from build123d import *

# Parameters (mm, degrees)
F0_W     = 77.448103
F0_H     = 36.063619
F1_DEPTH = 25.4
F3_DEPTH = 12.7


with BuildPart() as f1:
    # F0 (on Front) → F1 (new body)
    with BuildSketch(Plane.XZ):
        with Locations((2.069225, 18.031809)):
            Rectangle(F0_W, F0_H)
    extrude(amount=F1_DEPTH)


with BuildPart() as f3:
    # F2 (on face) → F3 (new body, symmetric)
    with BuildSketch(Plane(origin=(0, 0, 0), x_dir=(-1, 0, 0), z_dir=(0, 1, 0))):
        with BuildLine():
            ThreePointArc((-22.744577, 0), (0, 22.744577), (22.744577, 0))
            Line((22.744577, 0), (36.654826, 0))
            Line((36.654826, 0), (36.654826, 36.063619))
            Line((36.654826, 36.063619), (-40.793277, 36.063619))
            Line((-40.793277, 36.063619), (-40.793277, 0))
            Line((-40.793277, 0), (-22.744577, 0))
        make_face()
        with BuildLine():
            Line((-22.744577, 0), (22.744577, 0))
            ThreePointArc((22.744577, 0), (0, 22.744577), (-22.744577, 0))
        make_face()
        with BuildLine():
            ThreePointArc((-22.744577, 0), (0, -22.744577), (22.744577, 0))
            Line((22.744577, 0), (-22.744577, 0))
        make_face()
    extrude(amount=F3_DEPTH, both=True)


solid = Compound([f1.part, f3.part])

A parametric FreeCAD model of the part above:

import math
import FreeCAD as App
import Part
import Sketcher
from FreeCAD import Vector
Q = App.Units.Quantity


def add_polygon(sketch, points):
    """Adds a closed chain of lines whose ends are joined by coincident constraints."""
    first, n = sketch.GeometryCount, len(points)
    for a, b in zip(points, points[1:] + points[:1]):
        sketch.addGeometry(Part.LineSegment(App.Vector(*a, 0), App.Vector(*b, 0)), False)
    for i in range(n):
        sketch.addConstraint(Sketcher.Constraint("Coincident", first + i, 2, first + (i + 1) % n, 1))

doc = App.newDocument("Part")
body = doc.addObject("PartDesign::Body", "Body")

# Sketch on XZ plane
sketch1 = doc.addObject("Sketcher::SketchObject", "Sketch")
body.addObject(sketch1)
sketch1.AttachmentSupport = (doc.XZ_Plane, [""])
sketch1.MapMode = "FlatFace"
add_polygon(sketch1, [(-37, 36), (-37, 0), (41, 0), (41, 36)])  # lines 0-3
sketch1.addConstraint(Sketcher.Constraint("Vertical", 0))
sketch1.addConstraint(Sketcher.Constraint("Horizontal", 1))
sketch1.addConstraint(Sketcher.Constraint("Vertical", 2))
sketch1.addConstraint(Sketcher.Constraint("Horizontal", 3))
sketch1.addConstraint(Sketcher.Constraint("PointOnObject", 0, 2, -1))
sketch1.addConstraint(Sketcher.Constraint("DistanceY", 0, 2, 0, 1, Q("36.063619 mm")))
sketch1.addConstraint(Sketcher.Constraint("DistanceX", 1, 1, 1, 2, Q("77.448103 mm")))
sketch1.addConstraint(Sketcher.Constraint("DistanceX", 0, 2, -1, 1, Q("36.654826 mm")))
pad1 = doc.addObject("PartDesign::Pad", "Pad")
body.addObject(pad1)
pad1.Profile = sketch1
pad1.Length = Q("1 in")
body2 = doc.addObject("PartDesign::Body", "Body001")

# Sketch on XZ plane
sketch2 = doc.addObject("Sketcher::SketchObject", "Sketch001")
body2.addObject(sketch2)
sketch2.AttachmentSupport = (doc.getObject("XZ_Plane001"), [""])
sketch2.MapMode = "FlatFace"
sketch2.addGeometry(Part.LineSegment(Vector(-37, 0, 0), Vector(-37, 36, 0)), False)
sketch2.addGeometry(Part.LineSegment(Vector(-37, 36, 0), Vector(41, 36, 0)), False)
sketch2.addGeometry(Part.LineSegment(Vector(41, 36, 0), Vector(41, 0, 0)), False)
sketch2.addGeometry(Part.LineSegment(Vector(41, 0, 0), Vector(23, 0, 0)), False)
sketch2.addGeometry(Part.ArcOfCircle(Part.Circle(Vector(0, 0, 0), Vector(0, 0, 1), 23), math.radians(180), math.radians(360)), False)
sketch2.addGeometry(Part.LineSegment(Vector(-23, 0, 0), Vector(-37, 0, 0)), False)
sketch2.addConstraint(Sketcher.Constraint("Coincident", 0, 2, 1, 1))
sketch2.addConstraint(Sketcher.Constraint("Coincident", 1, 2, 2, 1))
sketch2.addConstraint(Sketcher.Constraint("Coincident", 2, 2, 3, 1))
sketch2.addConstraint(Sketcher.Constraint("Coincident", 3, 2, 4, 2))
sketch2.addConstraint(Sketcher.Constraint("Coincident", 4, 1, 5, 1))
sketch2.addConstraint(Sketcher.Constraint("Coincident", 5, 2, 0, 1))
sketch2.addConstraint(Sketcher.Constraint("Vertical", 0))
sketch2.addConstraint(Sketcher.Constraint("Horizontal", 1))
sketch2.addConstraint(Sketcher.Constraint("Vertical", 2))
sketch2.addConstraint(Sketcher.Constraint("Horizontal", 3))
sketch2.addConstraint(Sketcher.Constraint("Horizontal", 5))
sketch2.addConstraint(Sketcher.Constraint("Coincident", 4, 3, -1, 1))
sketch2.addConstraint(Sketcher.Constraint("PointOnObject", 2, 2, -1))
sketch2.addConstraint(Sketcher.Constraint("PointOnObject", 4, 1, -1))
sketch2.addConstraint(Sketcher.Constraint("DistanceX", 3, 2, 3, 1, Q("18.0487 mm")))
sketch2.addConstraint(Sketcher.Constraint("Radius", 4, Q("22.744577 mm")))
sketch2.addConstraint(Sketcher.Constraint("DistanceX", 5, 2, 5, 1, Q("13.910249 mm")))
sketch2.addConstraint(Sketcher.Constraint("DistanceY", 0, 1, 0, 2, Q("36.063619 mm")))
pad2 = doc.addObject("PartDesign::Pad", "Pad001")
body2.addObject(pad2)
pad2.Profile = sketch2
pad2.Length = Q("1 in")
pad2.Midplane = True

doc.recompute()
